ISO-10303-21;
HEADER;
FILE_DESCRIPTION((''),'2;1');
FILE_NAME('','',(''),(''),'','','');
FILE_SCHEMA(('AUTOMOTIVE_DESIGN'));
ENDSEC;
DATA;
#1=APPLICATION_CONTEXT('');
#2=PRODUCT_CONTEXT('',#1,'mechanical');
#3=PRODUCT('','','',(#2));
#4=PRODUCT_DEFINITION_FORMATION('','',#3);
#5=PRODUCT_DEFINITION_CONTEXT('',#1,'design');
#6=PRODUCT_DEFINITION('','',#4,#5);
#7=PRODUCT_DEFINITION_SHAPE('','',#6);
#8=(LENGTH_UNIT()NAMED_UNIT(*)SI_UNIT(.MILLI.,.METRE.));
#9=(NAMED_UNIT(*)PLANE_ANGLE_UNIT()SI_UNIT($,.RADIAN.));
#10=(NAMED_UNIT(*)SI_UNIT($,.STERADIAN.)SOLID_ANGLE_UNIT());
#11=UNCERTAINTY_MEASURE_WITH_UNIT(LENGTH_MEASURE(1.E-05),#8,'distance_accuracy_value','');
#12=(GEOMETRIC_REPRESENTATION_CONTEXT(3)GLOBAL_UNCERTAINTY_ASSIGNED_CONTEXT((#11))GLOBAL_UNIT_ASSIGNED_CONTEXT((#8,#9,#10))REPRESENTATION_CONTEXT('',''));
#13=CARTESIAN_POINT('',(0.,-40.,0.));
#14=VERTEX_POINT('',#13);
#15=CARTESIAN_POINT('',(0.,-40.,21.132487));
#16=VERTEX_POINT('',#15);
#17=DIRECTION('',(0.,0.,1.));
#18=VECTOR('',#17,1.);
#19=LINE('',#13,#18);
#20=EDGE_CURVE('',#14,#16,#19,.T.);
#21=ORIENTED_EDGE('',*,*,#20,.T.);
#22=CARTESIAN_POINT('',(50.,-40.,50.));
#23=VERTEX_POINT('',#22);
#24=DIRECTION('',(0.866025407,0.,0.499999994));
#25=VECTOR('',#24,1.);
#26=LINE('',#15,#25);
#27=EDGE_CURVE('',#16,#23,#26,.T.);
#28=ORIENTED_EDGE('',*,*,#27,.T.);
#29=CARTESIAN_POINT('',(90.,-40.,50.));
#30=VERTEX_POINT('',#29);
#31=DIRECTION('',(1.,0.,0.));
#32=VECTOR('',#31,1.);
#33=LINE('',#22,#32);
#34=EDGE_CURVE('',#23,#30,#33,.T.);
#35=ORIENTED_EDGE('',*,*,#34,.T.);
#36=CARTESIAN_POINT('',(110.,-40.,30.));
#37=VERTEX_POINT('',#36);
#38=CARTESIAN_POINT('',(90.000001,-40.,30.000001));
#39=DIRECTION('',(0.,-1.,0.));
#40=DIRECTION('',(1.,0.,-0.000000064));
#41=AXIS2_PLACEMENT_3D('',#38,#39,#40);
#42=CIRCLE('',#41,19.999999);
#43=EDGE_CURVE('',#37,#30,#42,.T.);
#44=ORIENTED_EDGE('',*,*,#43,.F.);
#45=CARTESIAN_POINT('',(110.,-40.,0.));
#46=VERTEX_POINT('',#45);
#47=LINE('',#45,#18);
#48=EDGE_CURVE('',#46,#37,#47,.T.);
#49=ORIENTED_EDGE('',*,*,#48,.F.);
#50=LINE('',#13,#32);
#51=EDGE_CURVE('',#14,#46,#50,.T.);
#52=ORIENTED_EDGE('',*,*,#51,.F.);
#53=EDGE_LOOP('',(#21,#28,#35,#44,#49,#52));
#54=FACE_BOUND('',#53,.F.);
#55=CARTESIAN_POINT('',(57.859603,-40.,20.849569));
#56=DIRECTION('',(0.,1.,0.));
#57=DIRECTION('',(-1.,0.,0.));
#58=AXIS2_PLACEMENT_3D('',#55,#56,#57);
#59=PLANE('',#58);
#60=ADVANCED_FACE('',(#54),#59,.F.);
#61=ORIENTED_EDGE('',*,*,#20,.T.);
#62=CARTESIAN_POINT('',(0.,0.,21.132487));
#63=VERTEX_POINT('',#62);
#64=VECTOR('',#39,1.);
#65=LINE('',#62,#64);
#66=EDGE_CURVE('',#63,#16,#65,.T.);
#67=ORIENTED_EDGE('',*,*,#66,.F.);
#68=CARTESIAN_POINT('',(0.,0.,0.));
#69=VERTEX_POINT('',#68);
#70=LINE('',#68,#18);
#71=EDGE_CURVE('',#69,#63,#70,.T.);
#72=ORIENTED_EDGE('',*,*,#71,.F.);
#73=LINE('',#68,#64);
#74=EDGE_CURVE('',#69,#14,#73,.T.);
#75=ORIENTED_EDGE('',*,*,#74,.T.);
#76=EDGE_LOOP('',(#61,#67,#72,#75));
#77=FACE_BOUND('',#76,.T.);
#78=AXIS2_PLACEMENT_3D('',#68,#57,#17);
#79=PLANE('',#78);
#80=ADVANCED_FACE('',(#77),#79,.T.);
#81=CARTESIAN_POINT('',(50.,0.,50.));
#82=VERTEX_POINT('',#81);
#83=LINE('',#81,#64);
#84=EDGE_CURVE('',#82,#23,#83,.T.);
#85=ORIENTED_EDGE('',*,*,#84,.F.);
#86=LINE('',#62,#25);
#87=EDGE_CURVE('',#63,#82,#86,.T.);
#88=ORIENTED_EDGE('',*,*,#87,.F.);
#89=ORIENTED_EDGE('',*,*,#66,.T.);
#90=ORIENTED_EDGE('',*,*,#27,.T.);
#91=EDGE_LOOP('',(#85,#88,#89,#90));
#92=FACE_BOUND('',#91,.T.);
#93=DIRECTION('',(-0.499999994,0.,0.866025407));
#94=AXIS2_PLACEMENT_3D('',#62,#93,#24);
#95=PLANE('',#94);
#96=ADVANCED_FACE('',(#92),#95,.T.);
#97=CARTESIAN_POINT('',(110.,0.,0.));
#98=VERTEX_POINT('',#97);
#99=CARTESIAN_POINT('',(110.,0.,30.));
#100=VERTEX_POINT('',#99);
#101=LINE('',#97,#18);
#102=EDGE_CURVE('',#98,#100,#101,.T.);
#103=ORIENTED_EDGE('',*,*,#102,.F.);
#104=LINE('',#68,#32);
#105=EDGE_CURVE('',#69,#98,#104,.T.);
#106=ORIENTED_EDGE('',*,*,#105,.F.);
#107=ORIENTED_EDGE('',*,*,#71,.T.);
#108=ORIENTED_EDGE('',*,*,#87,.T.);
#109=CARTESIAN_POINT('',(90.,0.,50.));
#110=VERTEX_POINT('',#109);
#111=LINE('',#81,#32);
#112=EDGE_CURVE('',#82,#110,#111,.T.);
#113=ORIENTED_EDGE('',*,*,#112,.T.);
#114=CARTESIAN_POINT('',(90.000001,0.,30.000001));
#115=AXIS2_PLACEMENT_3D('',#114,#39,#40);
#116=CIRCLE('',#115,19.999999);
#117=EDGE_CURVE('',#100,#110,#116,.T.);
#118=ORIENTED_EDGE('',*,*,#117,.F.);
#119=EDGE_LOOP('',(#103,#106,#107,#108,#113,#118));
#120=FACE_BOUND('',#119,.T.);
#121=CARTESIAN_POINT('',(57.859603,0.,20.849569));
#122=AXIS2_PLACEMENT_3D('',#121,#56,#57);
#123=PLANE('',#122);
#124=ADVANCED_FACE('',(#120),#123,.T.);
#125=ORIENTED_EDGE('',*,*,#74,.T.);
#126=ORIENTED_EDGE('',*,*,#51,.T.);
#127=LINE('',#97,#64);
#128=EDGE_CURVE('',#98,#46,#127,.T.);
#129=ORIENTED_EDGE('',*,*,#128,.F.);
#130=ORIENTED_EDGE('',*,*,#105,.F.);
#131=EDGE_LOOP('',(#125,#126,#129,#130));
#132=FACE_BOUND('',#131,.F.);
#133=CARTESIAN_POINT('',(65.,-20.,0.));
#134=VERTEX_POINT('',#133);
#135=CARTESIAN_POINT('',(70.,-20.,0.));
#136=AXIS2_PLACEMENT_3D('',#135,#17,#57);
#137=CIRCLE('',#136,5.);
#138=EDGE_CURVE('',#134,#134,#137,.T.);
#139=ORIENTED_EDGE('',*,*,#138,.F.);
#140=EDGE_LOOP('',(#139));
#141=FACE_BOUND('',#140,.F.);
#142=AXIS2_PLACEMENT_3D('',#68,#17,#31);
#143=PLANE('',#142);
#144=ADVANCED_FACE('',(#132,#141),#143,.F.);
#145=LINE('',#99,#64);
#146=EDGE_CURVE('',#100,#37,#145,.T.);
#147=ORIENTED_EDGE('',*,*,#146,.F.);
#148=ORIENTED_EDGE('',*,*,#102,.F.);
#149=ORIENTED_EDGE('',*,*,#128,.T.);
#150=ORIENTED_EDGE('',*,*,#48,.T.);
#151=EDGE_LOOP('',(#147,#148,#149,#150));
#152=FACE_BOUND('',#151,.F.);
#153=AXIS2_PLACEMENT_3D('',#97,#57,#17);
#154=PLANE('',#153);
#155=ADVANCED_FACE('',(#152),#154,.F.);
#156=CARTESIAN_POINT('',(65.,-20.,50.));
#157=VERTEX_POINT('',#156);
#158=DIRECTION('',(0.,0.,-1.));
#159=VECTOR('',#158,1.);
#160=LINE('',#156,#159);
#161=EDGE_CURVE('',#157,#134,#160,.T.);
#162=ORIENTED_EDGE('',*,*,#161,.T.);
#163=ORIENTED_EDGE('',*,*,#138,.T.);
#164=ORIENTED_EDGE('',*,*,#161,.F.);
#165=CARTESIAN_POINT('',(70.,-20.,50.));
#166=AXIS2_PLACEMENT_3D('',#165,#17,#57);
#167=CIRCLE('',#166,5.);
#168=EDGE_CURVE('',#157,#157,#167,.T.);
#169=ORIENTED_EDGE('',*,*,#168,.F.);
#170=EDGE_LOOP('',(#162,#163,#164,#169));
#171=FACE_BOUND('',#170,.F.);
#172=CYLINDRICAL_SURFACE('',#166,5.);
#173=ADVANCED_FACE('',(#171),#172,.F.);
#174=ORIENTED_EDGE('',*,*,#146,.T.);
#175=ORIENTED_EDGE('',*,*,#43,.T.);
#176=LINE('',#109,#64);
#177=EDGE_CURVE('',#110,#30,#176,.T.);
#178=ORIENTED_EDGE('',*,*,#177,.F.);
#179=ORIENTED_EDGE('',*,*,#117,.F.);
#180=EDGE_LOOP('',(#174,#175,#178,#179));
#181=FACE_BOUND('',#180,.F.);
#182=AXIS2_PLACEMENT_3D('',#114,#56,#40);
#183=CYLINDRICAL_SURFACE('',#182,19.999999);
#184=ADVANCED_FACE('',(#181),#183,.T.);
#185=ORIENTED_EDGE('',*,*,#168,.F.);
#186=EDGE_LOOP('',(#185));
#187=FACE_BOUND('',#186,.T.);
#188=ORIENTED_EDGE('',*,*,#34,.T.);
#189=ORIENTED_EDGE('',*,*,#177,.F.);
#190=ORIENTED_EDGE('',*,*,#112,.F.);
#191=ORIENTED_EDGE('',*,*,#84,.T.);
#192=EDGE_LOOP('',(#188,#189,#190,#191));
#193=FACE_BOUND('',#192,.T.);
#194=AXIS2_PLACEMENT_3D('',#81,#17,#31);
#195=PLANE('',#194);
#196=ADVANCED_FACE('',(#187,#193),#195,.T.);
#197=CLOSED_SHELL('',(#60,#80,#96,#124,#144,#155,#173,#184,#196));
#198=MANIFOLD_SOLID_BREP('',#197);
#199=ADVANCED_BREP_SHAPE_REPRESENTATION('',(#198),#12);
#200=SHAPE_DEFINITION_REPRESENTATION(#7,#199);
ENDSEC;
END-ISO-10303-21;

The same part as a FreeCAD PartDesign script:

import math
import FreeCAD as App
import Part
import Sketcher
from FreeCAD import Vector
Q = App.Units.Quantity

doc = App.newDocument("Part")
body = doc.addObject("PartDesign::Body", "Body")

sketch1 = body.newObject("Sketcher::SketchObject", "Sketch")
sketch1.AttachmentSupport = (doc.getObject("XZ_Plane"), [""])
sketch1.MapMode = "FlatFace"
sketch1.addGeometry([
    Part.LineSegment(Vector(0, 21, 0), Vector(0, 0, 0)),
    Part.LineSegment(Vector(0, 0, 0), Vector(110, 0, 0)),
    Part.LineSegment(Vector(110, 0, 0), Vector(110, 30, 0)),
    Part.ArcOfCircle(Part.Circle(Vector(90, 30, 0), Vector(0, 0, 1), 20), math.radians(0), math.radians(90)),
    Part.LineSegment(Vector(90, 50, 0), Vector(50, 50, 0)),
    Part.LineSegment(Vector(50, 50, 0), Vector(0, 21, 0)),
], False)
sketch1.addConstraint([
    Sketcher.Constraint("Coincident", 0, 2, 1, 1),
    Sketcher.Constraint("Coincident", 1, 2, 2, 1),
    Sketcher.Constraint("Tangent", 2, 2, 3, 1),
    Sketcher.Constraint("Tangent", 3, 2, 4, 1),
    Sketcher.Constraint("Coincident", 4, 2, 5, 1),
    Sketcher.Constraint("Coincident", 5, 2, 0, 1),
    Sketcher.Constraint("Vertical", 0),
    Sketcher.Constraint("Horizontal", 1),
    Sketcher.Constraint("Vertical", 2),
    Sketcher.Constraint("Horizontal", 4),
    Sketcher.Constraint("Coincident", 0, 2, -1, 1),
    Sketcher.Constraint("Radius", 3, Q("19.999999 mm")),
    Sketcher.Constraint("DistanceX", 1, 1, 1, 2, Q("110 mm")),
    Sketcher.Constraint("DistanceX", 4, 2, 4, 1, Q("40 mm")),
    Sketcher.Constraint("DistanceY", 2, 1, 2, 2, Q("30 mm")),
    Sketcher.Constraint("Angle", 5, Q("-150 deg")),
])
pad1 = body.newObject("PartDesign::Pad", "Pad")
pad1.Profile = sketch1
pad1.Length = 40

sketch2 = body.newObject("Sketcher::SketchObject", "Sketch001")
sketch2.AttachmentSupport = (doc.getObject("XY_Plane"), [""])
sketch2.MapMode = "FlatFace"
sketch2.AttachmentOffset = App.Placement(Vector(0, 0, 50), App.Rotation())
sketch2.addGeometry(Part.Circle(Vector(70, -20, 0), Vector(0, 0, 1), 5), False)
sketch2.addConstraint([
    Sketcher.Constraint("Diameter", 0, Q("10 mm")),
    Sketcher.Constraint("DistanceX", -1, 1, 0, 3, Q("70 mm")),
    Sketcher.Constraint("DistanceY", 0, 3, -1, 1, Q("20 mm")),
])
pocket1 = body.newObject("PartDesign::Pocket", "Pocket")
pocket1.Profile = sketch2
pocket1.Type = "ThroughAll"

doc.recompute()
